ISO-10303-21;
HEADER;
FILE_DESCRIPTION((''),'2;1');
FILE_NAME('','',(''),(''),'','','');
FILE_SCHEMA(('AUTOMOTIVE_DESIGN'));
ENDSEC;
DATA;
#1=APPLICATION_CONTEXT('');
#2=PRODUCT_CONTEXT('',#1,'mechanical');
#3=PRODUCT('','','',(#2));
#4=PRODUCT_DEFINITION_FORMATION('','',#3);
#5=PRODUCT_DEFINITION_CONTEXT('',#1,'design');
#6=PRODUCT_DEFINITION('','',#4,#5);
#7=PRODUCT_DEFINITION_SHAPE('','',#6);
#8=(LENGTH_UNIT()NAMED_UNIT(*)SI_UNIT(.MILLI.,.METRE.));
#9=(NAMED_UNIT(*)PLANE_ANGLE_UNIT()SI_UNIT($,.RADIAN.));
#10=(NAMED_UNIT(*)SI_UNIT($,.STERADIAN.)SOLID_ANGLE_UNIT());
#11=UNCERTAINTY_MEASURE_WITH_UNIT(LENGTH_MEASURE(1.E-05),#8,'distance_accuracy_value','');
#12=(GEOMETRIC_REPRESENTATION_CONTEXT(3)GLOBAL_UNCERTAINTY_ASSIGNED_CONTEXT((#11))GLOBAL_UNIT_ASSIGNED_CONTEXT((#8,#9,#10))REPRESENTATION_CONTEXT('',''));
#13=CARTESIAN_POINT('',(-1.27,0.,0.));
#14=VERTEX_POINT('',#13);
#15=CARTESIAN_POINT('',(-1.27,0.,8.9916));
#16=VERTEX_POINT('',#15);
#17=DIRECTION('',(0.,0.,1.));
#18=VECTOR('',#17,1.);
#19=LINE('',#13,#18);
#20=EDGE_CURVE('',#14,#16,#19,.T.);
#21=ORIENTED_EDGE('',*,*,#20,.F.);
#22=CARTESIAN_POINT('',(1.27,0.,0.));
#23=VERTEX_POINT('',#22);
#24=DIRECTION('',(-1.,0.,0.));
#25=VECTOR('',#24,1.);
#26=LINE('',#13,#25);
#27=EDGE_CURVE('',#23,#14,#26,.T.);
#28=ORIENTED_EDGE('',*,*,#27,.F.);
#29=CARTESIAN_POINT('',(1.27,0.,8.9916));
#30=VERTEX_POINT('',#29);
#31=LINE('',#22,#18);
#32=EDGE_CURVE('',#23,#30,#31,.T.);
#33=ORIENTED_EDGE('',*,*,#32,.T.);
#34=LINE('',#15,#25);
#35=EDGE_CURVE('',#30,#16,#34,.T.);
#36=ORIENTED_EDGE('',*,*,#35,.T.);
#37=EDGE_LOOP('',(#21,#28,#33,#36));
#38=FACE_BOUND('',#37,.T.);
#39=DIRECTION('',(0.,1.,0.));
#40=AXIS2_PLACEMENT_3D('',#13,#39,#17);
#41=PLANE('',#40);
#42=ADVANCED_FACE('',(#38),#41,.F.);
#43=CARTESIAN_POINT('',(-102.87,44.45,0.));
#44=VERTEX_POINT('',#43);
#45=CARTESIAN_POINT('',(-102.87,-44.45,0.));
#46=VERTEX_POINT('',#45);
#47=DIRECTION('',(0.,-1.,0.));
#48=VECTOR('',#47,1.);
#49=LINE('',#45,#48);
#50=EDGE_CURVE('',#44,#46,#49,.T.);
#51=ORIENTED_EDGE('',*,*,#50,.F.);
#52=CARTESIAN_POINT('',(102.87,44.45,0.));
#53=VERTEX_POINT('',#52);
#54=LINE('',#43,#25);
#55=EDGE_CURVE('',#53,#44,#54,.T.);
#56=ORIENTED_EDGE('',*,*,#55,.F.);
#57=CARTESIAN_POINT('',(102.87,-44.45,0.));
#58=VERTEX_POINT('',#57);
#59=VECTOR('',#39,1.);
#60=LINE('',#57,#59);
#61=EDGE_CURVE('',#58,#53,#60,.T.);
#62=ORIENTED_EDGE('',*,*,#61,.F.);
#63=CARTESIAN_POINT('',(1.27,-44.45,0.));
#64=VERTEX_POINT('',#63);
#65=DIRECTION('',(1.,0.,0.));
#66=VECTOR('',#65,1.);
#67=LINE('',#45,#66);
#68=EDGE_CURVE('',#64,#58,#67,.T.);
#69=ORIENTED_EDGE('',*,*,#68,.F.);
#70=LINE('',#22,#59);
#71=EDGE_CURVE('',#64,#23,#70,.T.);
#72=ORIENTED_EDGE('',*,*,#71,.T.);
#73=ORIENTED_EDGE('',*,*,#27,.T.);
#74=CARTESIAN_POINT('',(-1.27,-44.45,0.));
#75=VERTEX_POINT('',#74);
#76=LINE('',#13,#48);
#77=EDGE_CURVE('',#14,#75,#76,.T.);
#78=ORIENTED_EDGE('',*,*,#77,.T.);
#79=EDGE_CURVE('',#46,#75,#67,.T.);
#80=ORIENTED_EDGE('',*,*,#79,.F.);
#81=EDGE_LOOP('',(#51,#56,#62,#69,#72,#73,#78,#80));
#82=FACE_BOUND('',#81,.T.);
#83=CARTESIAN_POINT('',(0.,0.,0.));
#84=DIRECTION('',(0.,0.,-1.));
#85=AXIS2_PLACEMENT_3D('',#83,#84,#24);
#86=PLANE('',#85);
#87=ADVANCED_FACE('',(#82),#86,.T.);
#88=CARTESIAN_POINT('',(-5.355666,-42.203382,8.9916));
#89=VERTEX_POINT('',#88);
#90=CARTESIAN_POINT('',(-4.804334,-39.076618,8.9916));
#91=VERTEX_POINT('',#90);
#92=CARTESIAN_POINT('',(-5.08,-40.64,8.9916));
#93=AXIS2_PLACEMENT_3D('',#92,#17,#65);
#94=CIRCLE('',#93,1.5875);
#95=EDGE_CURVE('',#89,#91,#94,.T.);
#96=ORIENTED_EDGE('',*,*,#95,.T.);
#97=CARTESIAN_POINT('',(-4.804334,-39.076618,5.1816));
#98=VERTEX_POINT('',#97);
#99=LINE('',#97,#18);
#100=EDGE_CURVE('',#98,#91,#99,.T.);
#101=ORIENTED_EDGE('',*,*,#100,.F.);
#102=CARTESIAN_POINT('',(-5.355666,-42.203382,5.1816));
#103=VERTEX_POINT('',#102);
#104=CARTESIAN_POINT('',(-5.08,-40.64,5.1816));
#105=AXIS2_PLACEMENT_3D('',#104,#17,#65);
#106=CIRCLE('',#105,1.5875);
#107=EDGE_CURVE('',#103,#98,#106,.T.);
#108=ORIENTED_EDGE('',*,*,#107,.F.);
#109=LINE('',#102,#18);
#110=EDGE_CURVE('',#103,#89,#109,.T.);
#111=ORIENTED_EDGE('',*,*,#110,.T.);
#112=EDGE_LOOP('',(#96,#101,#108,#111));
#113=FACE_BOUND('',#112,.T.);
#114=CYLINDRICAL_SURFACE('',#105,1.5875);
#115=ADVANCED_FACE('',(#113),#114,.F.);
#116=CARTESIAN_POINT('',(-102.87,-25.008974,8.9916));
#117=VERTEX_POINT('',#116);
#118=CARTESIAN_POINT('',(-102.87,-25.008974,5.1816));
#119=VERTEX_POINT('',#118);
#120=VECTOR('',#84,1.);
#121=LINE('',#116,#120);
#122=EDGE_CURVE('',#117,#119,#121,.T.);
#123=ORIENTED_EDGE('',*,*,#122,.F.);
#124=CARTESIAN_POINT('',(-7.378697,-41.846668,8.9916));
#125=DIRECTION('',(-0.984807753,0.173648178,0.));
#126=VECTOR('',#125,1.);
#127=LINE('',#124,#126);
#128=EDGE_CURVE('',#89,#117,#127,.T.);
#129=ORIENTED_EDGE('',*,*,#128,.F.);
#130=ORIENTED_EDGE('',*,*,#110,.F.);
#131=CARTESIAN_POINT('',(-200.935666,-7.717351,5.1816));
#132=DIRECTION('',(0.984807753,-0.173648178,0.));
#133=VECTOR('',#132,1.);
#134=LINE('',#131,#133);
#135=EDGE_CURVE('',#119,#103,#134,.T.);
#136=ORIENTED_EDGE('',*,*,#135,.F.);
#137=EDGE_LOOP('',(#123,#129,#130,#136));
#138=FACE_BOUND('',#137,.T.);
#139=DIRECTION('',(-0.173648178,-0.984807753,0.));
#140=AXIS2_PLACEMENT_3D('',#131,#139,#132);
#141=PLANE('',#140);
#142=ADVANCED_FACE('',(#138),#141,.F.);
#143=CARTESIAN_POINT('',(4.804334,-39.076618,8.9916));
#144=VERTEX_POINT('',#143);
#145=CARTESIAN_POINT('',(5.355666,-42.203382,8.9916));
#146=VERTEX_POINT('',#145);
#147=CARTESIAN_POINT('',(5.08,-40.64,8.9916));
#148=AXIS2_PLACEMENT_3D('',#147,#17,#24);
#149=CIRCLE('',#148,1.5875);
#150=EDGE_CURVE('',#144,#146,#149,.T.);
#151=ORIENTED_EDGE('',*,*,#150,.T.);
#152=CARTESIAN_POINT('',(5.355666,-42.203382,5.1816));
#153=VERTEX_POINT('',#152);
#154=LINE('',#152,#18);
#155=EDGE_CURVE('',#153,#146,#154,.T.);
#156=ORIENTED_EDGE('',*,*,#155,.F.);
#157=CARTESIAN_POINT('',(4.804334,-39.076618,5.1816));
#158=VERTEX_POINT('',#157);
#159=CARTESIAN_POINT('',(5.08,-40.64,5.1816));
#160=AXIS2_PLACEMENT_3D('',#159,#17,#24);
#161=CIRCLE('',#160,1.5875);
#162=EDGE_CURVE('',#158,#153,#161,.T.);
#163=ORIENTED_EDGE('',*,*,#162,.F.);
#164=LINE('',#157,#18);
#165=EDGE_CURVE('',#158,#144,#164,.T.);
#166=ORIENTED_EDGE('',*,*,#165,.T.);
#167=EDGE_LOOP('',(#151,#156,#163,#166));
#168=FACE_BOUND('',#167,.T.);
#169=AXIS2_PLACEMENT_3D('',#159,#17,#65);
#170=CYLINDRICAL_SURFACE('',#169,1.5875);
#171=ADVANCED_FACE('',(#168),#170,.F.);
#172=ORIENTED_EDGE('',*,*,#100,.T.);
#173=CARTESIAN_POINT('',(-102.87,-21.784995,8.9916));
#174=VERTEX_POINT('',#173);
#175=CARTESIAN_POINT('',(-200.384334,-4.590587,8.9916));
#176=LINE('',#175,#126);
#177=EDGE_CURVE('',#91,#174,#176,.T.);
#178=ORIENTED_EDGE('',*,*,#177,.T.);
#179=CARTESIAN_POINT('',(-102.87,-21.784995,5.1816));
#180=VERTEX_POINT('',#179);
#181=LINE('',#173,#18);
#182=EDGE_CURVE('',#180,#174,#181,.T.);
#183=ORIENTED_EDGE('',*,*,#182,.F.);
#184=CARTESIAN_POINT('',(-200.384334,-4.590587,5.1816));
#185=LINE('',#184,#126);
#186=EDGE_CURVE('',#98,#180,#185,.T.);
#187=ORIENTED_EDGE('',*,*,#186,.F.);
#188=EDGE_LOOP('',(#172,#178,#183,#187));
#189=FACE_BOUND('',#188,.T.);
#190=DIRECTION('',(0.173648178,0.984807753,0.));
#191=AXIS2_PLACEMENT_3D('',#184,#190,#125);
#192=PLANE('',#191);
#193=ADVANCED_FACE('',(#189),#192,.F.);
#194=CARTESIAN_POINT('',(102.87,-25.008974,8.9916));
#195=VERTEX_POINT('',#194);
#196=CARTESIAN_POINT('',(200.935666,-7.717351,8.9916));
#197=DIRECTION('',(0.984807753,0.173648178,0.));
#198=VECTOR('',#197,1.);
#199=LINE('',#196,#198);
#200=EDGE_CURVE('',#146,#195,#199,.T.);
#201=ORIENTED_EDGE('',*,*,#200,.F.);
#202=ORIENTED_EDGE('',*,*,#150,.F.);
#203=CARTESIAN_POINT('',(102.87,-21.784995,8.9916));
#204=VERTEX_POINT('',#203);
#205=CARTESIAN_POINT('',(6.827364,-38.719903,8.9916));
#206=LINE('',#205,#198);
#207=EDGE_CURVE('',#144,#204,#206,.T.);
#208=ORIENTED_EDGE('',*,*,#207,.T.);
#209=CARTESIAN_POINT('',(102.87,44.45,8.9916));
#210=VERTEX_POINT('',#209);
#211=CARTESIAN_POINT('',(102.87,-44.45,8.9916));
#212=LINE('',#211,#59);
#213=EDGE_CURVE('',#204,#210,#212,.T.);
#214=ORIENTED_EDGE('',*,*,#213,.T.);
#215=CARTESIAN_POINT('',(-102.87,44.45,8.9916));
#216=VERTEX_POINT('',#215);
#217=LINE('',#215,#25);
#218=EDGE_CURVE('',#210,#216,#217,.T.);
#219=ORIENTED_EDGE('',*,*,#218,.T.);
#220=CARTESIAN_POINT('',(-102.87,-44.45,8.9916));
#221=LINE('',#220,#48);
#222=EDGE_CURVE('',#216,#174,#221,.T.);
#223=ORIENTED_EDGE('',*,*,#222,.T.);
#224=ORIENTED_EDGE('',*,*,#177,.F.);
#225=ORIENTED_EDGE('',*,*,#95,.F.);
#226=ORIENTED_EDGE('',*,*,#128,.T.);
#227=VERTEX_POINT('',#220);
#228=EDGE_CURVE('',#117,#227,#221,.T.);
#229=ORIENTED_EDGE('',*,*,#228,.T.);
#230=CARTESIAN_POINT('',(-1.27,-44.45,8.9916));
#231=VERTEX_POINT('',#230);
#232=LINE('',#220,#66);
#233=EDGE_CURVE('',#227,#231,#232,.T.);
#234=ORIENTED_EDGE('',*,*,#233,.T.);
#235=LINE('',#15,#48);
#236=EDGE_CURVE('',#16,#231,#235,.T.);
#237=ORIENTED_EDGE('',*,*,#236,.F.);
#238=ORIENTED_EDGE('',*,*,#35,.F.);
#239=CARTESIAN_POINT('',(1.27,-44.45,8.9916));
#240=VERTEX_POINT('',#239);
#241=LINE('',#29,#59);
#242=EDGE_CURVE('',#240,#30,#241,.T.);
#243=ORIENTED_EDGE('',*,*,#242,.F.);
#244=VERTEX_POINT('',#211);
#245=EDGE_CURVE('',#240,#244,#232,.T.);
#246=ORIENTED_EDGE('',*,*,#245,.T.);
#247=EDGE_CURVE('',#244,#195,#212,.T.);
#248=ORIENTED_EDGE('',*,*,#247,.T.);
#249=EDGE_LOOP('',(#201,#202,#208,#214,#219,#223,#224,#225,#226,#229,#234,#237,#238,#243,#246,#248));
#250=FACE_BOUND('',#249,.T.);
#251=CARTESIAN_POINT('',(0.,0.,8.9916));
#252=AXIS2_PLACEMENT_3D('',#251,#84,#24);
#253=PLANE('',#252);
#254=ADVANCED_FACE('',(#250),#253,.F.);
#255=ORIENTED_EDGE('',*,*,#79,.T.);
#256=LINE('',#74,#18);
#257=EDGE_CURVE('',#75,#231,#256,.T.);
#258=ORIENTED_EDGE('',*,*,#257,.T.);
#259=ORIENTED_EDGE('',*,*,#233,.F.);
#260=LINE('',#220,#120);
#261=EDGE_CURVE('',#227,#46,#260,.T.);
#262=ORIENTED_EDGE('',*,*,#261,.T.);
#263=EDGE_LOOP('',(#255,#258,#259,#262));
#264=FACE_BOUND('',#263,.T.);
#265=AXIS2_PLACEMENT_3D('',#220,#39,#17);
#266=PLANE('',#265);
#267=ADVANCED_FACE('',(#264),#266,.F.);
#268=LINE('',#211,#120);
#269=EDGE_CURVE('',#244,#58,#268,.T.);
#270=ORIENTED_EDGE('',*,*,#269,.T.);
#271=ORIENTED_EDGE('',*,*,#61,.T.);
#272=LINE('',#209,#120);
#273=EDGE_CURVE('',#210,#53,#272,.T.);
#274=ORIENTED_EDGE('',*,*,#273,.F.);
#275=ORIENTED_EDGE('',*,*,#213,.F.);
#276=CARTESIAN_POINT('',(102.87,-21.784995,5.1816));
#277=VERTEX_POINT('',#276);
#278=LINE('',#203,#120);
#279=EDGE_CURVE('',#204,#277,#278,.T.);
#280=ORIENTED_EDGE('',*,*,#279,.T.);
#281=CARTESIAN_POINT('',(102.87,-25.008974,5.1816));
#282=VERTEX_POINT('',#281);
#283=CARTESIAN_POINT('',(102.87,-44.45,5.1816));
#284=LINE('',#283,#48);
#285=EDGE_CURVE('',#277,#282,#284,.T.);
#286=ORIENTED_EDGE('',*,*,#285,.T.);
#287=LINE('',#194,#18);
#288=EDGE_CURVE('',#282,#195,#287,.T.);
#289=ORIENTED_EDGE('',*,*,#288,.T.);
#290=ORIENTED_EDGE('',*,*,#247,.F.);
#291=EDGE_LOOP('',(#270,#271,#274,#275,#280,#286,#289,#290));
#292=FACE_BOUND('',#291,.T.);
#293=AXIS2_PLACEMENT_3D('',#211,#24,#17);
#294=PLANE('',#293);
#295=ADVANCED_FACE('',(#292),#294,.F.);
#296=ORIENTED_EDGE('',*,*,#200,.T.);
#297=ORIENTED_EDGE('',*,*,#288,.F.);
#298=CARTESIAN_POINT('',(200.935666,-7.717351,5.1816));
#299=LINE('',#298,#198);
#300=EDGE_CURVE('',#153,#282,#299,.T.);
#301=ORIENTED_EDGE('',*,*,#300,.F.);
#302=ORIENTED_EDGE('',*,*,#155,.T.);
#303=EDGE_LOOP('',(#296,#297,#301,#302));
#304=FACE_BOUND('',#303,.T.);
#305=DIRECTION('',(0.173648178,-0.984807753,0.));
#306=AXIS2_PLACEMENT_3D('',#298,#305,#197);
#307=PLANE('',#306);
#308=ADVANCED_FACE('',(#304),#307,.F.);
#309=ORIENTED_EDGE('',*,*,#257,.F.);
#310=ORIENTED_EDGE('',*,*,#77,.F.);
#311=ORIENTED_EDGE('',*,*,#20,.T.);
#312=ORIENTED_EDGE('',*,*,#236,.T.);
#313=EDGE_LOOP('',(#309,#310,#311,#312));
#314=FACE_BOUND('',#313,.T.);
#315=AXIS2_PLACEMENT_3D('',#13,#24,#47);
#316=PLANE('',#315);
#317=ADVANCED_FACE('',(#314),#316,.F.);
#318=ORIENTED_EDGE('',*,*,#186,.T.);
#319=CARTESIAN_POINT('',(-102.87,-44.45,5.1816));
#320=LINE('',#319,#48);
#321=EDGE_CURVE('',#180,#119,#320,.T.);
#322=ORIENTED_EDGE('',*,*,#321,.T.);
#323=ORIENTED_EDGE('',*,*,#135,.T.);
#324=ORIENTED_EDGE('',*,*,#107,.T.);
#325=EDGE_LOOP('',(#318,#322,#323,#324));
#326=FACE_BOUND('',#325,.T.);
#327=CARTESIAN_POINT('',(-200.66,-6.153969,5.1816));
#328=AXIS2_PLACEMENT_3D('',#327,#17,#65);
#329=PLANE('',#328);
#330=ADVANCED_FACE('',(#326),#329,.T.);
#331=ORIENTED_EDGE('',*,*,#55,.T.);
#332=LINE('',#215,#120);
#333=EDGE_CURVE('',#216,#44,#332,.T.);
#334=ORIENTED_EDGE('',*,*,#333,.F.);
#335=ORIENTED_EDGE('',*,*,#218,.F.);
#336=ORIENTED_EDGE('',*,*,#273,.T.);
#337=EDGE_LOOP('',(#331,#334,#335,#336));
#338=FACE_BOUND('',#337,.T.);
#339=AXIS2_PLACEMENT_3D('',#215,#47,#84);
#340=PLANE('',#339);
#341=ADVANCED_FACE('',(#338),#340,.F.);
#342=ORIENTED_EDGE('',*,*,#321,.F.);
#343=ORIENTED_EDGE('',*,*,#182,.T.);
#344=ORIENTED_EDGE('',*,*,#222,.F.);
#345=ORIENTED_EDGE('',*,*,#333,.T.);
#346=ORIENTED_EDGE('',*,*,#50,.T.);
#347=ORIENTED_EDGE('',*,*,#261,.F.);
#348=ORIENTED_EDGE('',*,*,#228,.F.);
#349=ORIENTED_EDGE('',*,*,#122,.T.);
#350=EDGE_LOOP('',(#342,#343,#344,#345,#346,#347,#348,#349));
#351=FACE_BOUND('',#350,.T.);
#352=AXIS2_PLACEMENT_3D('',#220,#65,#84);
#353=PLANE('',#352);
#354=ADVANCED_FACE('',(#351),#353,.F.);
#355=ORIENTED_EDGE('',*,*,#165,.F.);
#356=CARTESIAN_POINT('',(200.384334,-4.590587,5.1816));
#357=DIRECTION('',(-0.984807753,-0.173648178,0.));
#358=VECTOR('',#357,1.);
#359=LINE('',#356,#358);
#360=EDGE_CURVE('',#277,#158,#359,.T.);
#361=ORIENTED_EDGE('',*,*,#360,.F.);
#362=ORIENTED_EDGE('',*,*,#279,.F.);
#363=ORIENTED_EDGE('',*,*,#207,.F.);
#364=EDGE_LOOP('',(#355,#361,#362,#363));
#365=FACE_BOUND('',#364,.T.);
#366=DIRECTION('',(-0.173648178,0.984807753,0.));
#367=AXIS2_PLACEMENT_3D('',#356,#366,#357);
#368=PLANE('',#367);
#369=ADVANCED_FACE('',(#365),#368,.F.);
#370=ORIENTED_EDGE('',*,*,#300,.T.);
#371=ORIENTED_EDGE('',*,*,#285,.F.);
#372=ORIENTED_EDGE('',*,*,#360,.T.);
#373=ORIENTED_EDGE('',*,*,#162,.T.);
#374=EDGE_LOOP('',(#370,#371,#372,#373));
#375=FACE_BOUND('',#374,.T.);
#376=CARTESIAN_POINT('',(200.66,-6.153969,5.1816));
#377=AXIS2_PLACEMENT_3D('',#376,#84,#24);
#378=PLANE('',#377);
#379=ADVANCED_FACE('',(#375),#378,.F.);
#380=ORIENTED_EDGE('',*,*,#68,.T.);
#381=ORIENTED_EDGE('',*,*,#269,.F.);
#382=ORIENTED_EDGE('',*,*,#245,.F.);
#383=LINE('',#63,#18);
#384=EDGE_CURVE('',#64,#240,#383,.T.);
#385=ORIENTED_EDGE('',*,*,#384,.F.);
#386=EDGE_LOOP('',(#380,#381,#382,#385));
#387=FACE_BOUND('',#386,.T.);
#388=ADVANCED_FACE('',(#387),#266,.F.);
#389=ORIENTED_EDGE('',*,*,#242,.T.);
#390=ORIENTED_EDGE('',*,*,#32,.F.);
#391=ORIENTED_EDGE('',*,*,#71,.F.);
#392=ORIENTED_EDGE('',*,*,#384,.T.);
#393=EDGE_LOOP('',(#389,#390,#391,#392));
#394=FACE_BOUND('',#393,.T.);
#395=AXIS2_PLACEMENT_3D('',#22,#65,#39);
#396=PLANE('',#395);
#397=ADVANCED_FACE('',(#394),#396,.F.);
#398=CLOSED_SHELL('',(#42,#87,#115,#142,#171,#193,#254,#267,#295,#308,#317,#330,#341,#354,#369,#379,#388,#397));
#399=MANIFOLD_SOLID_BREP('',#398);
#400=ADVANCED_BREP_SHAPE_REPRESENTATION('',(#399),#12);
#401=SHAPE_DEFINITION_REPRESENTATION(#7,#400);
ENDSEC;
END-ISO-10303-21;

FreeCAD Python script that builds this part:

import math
import FreeCAD as App
import Part
import Sketcher
Q = App.Units.Quantity


def add_polygon(sketch, points):
    """Adds a closed chain of lines whose ends are joined by coincident constraints."""
    first, n = sketch.GeometryCount, len(points)
    for a, b in zip(points, points[1:] + points[:1]):
        sketch.addGeometry(Part.LineSegment(App.Vector(*a, 0), App.Vector(*b, 0)), False)
    for i in range(n):
        sketch.addConstraint(Sketcher.Constraint("Coincident", first + i, 2, first + (i + 1) % n, 1))

doc = App.newDocument("Part")
body = doc.addObject("PartDesign::Body", "Body")

# Sketch on XY plane
sketch1 = body.newObject("Sketcher::SketchObject", "Sketch")
sketch1.AttachmentSupport = (doc.getObject("XY_Plane"), [""])
sketch1.MapMode = "FlatFace"
add_polygon(sketch1, [(-102.87, 44.45), (-102.87, -44.45), (102.87, -44.45), (102.87, 44.45)])  # lines 0-3
sketch1.addConstraint([
    Sketcher.Constraint("Vertical", 0),
    Sketcher.Constraint("Horizontal", 1),
    Sketcher.Constraint("Vertical", 2),
    Sketcher.Constraint("Horizontal", 3),
    Sketcher.Constraint("Symmetric", 0, 2, 2, 2, -1, 1),
    Sketcher.Constraint("DistanceX", 1, 1, 1, 2, Q("8.1 in")),
    Sketcher.Constraint("DistanceY", 0, 2, 0, 1, Q("3.5 in")),
])
pad1 = body.newObject("PartDesign::Pad", "Pad")
pad1.Profile = sketch1
pad1.Length = Q("0.354 in")

# Sketch on XY plane
sketch2 = body.newObject("Sketcher::SketchObject", "Sketch001")
sketch2.AttachmentSupport = (doc.getObject("XY_Plane"), [""])
sketch2.MapMode = "FlatFace"
sketch2.AttachmentOffset = App.Placement(App.Vector(0, 0, 0.354 * 25.4), App.Rotation())
add_polygon(sketch2, [(-1.27, 0), (-1.27, -44.45), (1.27, -44.45), (1.27, 0)])  # lines 0-3
sketch2.addConstraint([
    Sketcher.Constraint("Vertical", 0),
    Sketcher.Constraint("Horizontal", 1),
    Sketcher.Constraint("Vertical", 2),
    Sketcher.Constraint("Horizontal", 3),
    Sketcher.Constraint("Symmetric", 2, 2, 3, 2, -1, 1),
    Sketcher.Constraint("DistanceX", 1, 1, 1, 2, Q("0.1 in")),
    Sketcher.Constraint("DistanceY", 0, 2, 0, 1, Q("1.75 in")),
])
pocket1 = body.newObject("PartDesign::Pocket", "Pocket")
pocket1.Profile = sketch2
pocket1.Length = Q("0.354 in")

# Sketch on XY plane
sketch3 = body.newObject("Sketcher::SketchObject", "Sketch002")
sketch3.AttachmentSupport = (doc.getObject("XY_Plane"), [""])
sketch3.MapMode = "FlatFace"
sketch3.AttachmentOffset = App.Placement(App.Vector(0, 0, 0.354 * 25.4), App.Rotation())
sketch3.addGeometry([
    Part.LineSegment(App.Vector(-4.804334, -39.076618, 0), App.Vector(-200.384334, -4.590587, 0)),  # 0
    Part.ArcOfCircle(Part.Circle(App.Vector(-200.66, -6.153969, 0), App.Vector(0, 0, 1), 1.5875), math.radians(80), math.radians(260)),  # 1
    Part.LineSegment(App.Vector(-200.935666, -7.717351, 0), App.Vector(-5.355666, -42.203382, 0)),  # 2
    Part.ArcOfCircle(Part.Circle(App.Vector(-5.08, -40.64, 0), App.Vector(0, 0, 1), 1.5875), math.radians(-100), math.radians(80)),  # 3
    Part.LineSegment(App.Vector(200.384334, -4.590587, 0), App.Vector(4.804334, -39.076618, 0)),  # 4
    Part.ArcOfCircle(Part.Circle(App.Vector(5.08, -40.64, 0), App.Vector(0, 0, 1), 1.5875), math.radians(100), math.radians(280)),  # 5
    Part.LineSegment(App.Vector(5.355666, -42.203382, 0), App.Vector(200.935666, -7.717351, 0)),  # 6
    Part.ArcOfCircle(Part.Circle(App.Vector(200.66, -6.153969, 0), App.Vector(0, 0, 1), 1.5875), math.radians(-80), math.radians(100)),  # 7
], False)
sketch3.addConstraint([
    Sketcher.Constraint("Tangent", 0, 2, 1, 1),
    Sketcher.Constraint("Tangent", 1, 2, 2, 1),
    Sketcher.Constraint("Tangent", 2, 2, 3, 1),
    Sketcher.Constraint("Tangent", 3, 2, 0, 1),
    Sketcher.Constraint("Tangent", 4, 2, 5, 1),
    Sketcher.Constraint("Tangent", 5, 2, 6, 1),
    Sketcher.Constraint("Tangent", 6, 2, 7, 1),
    Sketcher.Constraint("Tangent", 7, 2, 4, 1),
    Sketcher.Constraint("Equal", 1, 3),
    Sketcher.Constraint("Equal", 3, 5),
    Sketcher.Constraint("Equal", 5, 7),
    Sketcher.Constraint("Symmetric", 3, 3, 5, 3, -2),
    Sketcher.Constraint("Symmetric", 1, 3, 7, 3, -2),
    Sketcher.Constraint("Angle", 0, Q("170 deg")),
    Sketcher.Constraint("Radius", 1, Q("0.0625 in")),
    Sketcher.Constraint("DistanceX", 1, 3, -1, 1, Q("7.9 in")),
    Sketcher.Constraint("DistanceX", 3, 3, -1, 1, Q("0.2 in")),
    Sketcher.Constraint("DistanceY", 3, 3, -1, 1, Q("1.6 in")),
])
pocket2 = body.newObject("PartDesign::Pocket", "Pocket001")
pocket2.Profile = sketch3
pocket2.Length = Q("0.15 in")

doc.recompute()
